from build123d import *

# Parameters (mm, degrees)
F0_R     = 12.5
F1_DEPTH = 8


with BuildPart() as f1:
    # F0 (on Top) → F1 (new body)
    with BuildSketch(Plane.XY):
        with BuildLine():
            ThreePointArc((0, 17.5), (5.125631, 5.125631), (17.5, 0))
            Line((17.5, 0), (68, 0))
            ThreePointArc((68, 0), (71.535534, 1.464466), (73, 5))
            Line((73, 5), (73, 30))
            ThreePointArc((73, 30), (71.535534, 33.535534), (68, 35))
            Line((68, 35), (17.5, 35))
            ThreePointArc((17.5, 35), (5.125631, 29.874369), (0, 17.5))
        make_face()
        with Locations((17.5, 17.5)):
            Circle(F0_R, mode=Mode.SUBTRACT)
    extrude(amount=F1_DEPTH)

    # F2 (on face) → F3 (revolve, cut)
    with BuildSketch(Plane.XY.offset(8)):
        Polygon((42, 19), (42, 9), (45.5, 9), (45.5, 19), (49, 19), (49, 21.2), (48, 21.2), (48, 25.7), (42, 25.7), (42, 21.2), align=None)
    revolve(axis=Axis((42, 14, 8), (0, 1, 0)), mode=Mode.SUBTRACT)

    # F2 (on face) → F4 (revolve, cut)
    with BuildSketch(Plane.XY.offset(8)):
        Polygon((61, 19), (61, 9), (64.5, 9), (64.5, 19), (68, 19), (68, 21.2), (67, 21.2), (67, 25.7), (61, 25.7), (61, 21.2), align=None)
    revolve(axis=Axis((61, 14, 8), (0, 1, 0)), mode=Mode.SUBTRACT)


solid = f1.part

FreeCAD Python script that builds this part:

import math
import FreeCAD as App
import Part
import Sketcher


def add_polygon(sketch, points):
    """Adds a closed chain of lines whose ends are joined by coincident constraints."""
    first, n = sketch.GeometryCount, len(points)
    for a, b in zip(points, points[1:] + points[:1]):
        sketch.addGeometry(Part.LineSegment(App.Vector(*a, 0), App.Vector(*b, 0)), False)
    for i in range(n):
        sketch.addConstraint(Sketcher.Constraint("Coincident", first + i, 2, first + (i + 1) % n, 1))

doc = App.newDocument("Part")
body = doc.addObject("PartDesign::Body", "Body")

# Sketch on XY plane
sketch1 = doc.addObject("Sketcher::SketchObject", "Sketch")
body.addObject(sketch1)
sketch1.AttachmentSupport = (doc.XY_Plane, [""])
sketch1.MapMode = "FlatFace"
sketch1.addGeometry([
    Part.ArcOfCircle(Part.Circle(App.Vector(17.5, 17.5, 0), App.Vector(0, 0, 1), 17.5), math.radians(180), math.radians(270)),  # 0
    Part.LineSegment(App.Vector(17.5, 0, 0), App.Vector(68, 0, 0)),  # 1
    Part.ArcOfCircle(Part.Circle(App.Vector(68, 5, 0), App.Vector(0, 0, 1), 5), math.radians(-90), math.radians(0)),  # 2
    Part.LineSegment(App.Vector(73, 5, 0), App.Vector(73, 30, 0)),  # 3
    Part.ArcOfCircle(Part.Circle(App.Vector(68, 30, 0), App.Vector(0, 0, 1), 5), math.radians(0), math.radians(90)),  # 4
    Part.LineSegment(App.Vector(68, 35, 0), App.Vector(17.5, 35, 0)),  # 5
    Part.ArcOfCircle(Part.Circle(App.Vector(17.5, 17.5, 0), App.Vector(0, 0, 1), 17.5), math.radians(90), math.radians(180)),  # 6
    Part.Circle(App.Vector(17.5, 17.5, 0), App.Vector(0, 0, 1), 12.5),  # 7
], False)
sketch1.addConstraint([
    Sketcher.Constraint("Tangent", 0, 2, 1, 1),
    Sketcher.Constraint("Tangent", 1, 2, 2, 1),
    Sketcher.Constraint("Tangent", 2, 2, 3, 1),
    Sketcher.Constraint("Tangent", 3, 2, 4, 1),
    Sketcher.Constraint("Tangent", 4, 2, 5, 1),
    Sketcher.Constraint("Tangent", 5, 2, 6, 1),
    Sketcher.Constraint("Tangent", 6, 2, 0, 1),
    Sketcher.Constraint("Horizontal", 1),
    Sketcher.Constraint("Vertical", 3),
    Sketcher.Constraint("Horizontal", 5),
    Sketcher.Constraint("Coincident", 7, 3, 0, 3),
    Sketcher.Constraint("Equal", 2, 4),
    Sketcher.Constraint("Equal", 0, 6),
    Sketcher.Constraint("PointOnObject", 0, 2, -1),
    Sketcher.Constraint("PointOnObject", 6, 2, -2),
    Sketcher.Constraint("Horizontal", 7, 3, 6, 2),
    Sketcher.Constraint("Diameter", 7, 25.0),
    Sketcher.Constraint("Radius", 2, 5.0),
    Sketcher.Constraint("Radius", 0, 17.499999),
    Sketcher.Constraint("DistanceX", 1, 1, 1, 2, 50.5),
])
pad1 = doc.addObject("PartDesign::Pad", "Pad")
body.addObject(pad1)
pad1.Profile = sketch1
pad1.Length = 8

# Sketch on XY plane
sketch2 = doc.addObject("Sketcher::SketchObject", "Sketch001")
body.addObject(sketch2)
sketch2.AttachmentSupport = (doc.XY_Plane, [""])
sketch2.MapMode = "FlatFace"
sketch2.AttachmentOffset = App.Placement(App.Vector(0, 0, 8), App.Rotation())
add_polygon(sketch2, [(42, 9), (45.5, 9), (45.5, 19), (49, 19), (49, 21.2), (48, 21.2), (48, 25.7), (42, 25.7)])  # lines 0-7
sketch2.addGeometry(Part.LineSegment(App.Vector(42, 9, 0), App.Vector(42, 25.7, 0)), True)  # axis
sketch2.addConstraint([
    Sketcher.Constraint("Horizontal", 0),
    Sketcher.Constraint("Vertical", 1),
    Sketcher.Constraint("Horizontal", 2),
    Sketcher.Constraint("Vertical", 3),
    Sketcher.Constraint("Horizontal", 4),
    Sketcher.Constraint("Vertical", 5),
    Sketcher.Constraint("Horizontal", 6),
    Sketcher.Constraint("Vertical", 7),
    Sketcher.Constraint("Vertical", 8),
    Sketcher.Constraint("Coincident", 8, 1, 7, 2),
    Sketcher.Constraint("Horizontal", 5, 2, 8, 2),
    Sketcher.Constraint("Equal", 0, 2),
    Sketcher.Constraint("DistanceX", 4, 2, 4, 1, 1.0),
    Sketcher.Constraint("DistanceX", 6, 2, 6, 1, 6.0),
    Sketcher.Constraint("DistanceY", 1, 1, 1, 2, 10.0),
    Sketcher.Constraint("DistanceY", 3, 1, 3, 2, 2.2),
    Sketcher.Constraint("DistanceY", 5, 1, 5, 2, 4.5),
    Sketcher.Constraint("DistanceY", -1, 1, 0, 2, 9.0),
    Sketcher.Constraint("DistanceX", -1, 1, 2, 2, 49.0),
])
groove = doc.addObject("PartDesign::Groove", "Groove")
body.addObject(groove)
groove.Profile = sketch2
groove.ReferenceAxis = (sketch2, ["Axis0"])
groove.Angle = 360

# Sketch on XY plane
sketch3 = doc.addObject("Sketcher::SketchObject", "Sketch002")
body.addObject(sketch3)
sketch3.AttachmentSupport = (doc.XY_Plane, [""])
sketch3.MapMode = "FlatFace"
sketch3.AttachmentOffset = App.Placement(App.Vector(0, 0, 8), App.Rotation())
add_polygon(sketch3, [(61, 9), (64.5, 9), (64.5, 19), (68, 19), (68, 21.2), (67, 21.2), (67, 25.7), (61, 25.7)])  # lines 0-7
sketch3.addGeometry(Part.LineSegment(App.Vector(61, 9, 0), App.Vector(61, 25.7, 0)), True)  # axis
sketch3.addConstraint([
    Sketcher.Constraint("Horizontal", 0),
    Sketcher.Constraint("Vertical", 1),
    Sketcher.Constraint("Horizontal", 2),
    Sketcher.Constraint("Vertical", 3),
    Sketcher.Constraint("Horizontal", 4),
    Sketcher.Constraint("Vertical", 5),
    Sketcher.Constraint("Horizontal", 6),
    Sketcher.Constraint("Vertical", 7),
    Sketcher.Constraint("Vertical", 8),
    Sketcher.Constraint("Coincident", 8, 1, 7, 2),
    Sketcher.Constraint("Horizontal", 5, 2, 8, 2),
    Sketcher.Constraint("Equal", 0, 2),
    Sketcher.Constraint("DistanceX", 4, 2, 4, 1, 1.0),
    Sketcher.Constraint("DistanceX", 6, 2, 6, 1, 6.0),
    Sketcher.Constraint("DistanceY", 1, 1, 1, 2, 10.0),
    Sketcher.Constraint("DistanceY", 3, 1, 3, 2, 2.2),
    Sketcher.Constraint("DistanceY", 5, 1, 5, 2, 4.5),
    Sketcher.Constraint("DistanceY", -1, 1, 0, 2, 9.0),
    Sketcher.Constraint("DistanceX", -1, 1, 2, 2, 68.0),
])
groove2 = doc.addObject("PartDesign::Groove", "Groove001")
body.addObject(groove2)
groove2.Profile = sketch3
groove2.ReferenceAxis = (sketch3, ["Axis0"])
groove2.Angle = 360

doc.recompute()
